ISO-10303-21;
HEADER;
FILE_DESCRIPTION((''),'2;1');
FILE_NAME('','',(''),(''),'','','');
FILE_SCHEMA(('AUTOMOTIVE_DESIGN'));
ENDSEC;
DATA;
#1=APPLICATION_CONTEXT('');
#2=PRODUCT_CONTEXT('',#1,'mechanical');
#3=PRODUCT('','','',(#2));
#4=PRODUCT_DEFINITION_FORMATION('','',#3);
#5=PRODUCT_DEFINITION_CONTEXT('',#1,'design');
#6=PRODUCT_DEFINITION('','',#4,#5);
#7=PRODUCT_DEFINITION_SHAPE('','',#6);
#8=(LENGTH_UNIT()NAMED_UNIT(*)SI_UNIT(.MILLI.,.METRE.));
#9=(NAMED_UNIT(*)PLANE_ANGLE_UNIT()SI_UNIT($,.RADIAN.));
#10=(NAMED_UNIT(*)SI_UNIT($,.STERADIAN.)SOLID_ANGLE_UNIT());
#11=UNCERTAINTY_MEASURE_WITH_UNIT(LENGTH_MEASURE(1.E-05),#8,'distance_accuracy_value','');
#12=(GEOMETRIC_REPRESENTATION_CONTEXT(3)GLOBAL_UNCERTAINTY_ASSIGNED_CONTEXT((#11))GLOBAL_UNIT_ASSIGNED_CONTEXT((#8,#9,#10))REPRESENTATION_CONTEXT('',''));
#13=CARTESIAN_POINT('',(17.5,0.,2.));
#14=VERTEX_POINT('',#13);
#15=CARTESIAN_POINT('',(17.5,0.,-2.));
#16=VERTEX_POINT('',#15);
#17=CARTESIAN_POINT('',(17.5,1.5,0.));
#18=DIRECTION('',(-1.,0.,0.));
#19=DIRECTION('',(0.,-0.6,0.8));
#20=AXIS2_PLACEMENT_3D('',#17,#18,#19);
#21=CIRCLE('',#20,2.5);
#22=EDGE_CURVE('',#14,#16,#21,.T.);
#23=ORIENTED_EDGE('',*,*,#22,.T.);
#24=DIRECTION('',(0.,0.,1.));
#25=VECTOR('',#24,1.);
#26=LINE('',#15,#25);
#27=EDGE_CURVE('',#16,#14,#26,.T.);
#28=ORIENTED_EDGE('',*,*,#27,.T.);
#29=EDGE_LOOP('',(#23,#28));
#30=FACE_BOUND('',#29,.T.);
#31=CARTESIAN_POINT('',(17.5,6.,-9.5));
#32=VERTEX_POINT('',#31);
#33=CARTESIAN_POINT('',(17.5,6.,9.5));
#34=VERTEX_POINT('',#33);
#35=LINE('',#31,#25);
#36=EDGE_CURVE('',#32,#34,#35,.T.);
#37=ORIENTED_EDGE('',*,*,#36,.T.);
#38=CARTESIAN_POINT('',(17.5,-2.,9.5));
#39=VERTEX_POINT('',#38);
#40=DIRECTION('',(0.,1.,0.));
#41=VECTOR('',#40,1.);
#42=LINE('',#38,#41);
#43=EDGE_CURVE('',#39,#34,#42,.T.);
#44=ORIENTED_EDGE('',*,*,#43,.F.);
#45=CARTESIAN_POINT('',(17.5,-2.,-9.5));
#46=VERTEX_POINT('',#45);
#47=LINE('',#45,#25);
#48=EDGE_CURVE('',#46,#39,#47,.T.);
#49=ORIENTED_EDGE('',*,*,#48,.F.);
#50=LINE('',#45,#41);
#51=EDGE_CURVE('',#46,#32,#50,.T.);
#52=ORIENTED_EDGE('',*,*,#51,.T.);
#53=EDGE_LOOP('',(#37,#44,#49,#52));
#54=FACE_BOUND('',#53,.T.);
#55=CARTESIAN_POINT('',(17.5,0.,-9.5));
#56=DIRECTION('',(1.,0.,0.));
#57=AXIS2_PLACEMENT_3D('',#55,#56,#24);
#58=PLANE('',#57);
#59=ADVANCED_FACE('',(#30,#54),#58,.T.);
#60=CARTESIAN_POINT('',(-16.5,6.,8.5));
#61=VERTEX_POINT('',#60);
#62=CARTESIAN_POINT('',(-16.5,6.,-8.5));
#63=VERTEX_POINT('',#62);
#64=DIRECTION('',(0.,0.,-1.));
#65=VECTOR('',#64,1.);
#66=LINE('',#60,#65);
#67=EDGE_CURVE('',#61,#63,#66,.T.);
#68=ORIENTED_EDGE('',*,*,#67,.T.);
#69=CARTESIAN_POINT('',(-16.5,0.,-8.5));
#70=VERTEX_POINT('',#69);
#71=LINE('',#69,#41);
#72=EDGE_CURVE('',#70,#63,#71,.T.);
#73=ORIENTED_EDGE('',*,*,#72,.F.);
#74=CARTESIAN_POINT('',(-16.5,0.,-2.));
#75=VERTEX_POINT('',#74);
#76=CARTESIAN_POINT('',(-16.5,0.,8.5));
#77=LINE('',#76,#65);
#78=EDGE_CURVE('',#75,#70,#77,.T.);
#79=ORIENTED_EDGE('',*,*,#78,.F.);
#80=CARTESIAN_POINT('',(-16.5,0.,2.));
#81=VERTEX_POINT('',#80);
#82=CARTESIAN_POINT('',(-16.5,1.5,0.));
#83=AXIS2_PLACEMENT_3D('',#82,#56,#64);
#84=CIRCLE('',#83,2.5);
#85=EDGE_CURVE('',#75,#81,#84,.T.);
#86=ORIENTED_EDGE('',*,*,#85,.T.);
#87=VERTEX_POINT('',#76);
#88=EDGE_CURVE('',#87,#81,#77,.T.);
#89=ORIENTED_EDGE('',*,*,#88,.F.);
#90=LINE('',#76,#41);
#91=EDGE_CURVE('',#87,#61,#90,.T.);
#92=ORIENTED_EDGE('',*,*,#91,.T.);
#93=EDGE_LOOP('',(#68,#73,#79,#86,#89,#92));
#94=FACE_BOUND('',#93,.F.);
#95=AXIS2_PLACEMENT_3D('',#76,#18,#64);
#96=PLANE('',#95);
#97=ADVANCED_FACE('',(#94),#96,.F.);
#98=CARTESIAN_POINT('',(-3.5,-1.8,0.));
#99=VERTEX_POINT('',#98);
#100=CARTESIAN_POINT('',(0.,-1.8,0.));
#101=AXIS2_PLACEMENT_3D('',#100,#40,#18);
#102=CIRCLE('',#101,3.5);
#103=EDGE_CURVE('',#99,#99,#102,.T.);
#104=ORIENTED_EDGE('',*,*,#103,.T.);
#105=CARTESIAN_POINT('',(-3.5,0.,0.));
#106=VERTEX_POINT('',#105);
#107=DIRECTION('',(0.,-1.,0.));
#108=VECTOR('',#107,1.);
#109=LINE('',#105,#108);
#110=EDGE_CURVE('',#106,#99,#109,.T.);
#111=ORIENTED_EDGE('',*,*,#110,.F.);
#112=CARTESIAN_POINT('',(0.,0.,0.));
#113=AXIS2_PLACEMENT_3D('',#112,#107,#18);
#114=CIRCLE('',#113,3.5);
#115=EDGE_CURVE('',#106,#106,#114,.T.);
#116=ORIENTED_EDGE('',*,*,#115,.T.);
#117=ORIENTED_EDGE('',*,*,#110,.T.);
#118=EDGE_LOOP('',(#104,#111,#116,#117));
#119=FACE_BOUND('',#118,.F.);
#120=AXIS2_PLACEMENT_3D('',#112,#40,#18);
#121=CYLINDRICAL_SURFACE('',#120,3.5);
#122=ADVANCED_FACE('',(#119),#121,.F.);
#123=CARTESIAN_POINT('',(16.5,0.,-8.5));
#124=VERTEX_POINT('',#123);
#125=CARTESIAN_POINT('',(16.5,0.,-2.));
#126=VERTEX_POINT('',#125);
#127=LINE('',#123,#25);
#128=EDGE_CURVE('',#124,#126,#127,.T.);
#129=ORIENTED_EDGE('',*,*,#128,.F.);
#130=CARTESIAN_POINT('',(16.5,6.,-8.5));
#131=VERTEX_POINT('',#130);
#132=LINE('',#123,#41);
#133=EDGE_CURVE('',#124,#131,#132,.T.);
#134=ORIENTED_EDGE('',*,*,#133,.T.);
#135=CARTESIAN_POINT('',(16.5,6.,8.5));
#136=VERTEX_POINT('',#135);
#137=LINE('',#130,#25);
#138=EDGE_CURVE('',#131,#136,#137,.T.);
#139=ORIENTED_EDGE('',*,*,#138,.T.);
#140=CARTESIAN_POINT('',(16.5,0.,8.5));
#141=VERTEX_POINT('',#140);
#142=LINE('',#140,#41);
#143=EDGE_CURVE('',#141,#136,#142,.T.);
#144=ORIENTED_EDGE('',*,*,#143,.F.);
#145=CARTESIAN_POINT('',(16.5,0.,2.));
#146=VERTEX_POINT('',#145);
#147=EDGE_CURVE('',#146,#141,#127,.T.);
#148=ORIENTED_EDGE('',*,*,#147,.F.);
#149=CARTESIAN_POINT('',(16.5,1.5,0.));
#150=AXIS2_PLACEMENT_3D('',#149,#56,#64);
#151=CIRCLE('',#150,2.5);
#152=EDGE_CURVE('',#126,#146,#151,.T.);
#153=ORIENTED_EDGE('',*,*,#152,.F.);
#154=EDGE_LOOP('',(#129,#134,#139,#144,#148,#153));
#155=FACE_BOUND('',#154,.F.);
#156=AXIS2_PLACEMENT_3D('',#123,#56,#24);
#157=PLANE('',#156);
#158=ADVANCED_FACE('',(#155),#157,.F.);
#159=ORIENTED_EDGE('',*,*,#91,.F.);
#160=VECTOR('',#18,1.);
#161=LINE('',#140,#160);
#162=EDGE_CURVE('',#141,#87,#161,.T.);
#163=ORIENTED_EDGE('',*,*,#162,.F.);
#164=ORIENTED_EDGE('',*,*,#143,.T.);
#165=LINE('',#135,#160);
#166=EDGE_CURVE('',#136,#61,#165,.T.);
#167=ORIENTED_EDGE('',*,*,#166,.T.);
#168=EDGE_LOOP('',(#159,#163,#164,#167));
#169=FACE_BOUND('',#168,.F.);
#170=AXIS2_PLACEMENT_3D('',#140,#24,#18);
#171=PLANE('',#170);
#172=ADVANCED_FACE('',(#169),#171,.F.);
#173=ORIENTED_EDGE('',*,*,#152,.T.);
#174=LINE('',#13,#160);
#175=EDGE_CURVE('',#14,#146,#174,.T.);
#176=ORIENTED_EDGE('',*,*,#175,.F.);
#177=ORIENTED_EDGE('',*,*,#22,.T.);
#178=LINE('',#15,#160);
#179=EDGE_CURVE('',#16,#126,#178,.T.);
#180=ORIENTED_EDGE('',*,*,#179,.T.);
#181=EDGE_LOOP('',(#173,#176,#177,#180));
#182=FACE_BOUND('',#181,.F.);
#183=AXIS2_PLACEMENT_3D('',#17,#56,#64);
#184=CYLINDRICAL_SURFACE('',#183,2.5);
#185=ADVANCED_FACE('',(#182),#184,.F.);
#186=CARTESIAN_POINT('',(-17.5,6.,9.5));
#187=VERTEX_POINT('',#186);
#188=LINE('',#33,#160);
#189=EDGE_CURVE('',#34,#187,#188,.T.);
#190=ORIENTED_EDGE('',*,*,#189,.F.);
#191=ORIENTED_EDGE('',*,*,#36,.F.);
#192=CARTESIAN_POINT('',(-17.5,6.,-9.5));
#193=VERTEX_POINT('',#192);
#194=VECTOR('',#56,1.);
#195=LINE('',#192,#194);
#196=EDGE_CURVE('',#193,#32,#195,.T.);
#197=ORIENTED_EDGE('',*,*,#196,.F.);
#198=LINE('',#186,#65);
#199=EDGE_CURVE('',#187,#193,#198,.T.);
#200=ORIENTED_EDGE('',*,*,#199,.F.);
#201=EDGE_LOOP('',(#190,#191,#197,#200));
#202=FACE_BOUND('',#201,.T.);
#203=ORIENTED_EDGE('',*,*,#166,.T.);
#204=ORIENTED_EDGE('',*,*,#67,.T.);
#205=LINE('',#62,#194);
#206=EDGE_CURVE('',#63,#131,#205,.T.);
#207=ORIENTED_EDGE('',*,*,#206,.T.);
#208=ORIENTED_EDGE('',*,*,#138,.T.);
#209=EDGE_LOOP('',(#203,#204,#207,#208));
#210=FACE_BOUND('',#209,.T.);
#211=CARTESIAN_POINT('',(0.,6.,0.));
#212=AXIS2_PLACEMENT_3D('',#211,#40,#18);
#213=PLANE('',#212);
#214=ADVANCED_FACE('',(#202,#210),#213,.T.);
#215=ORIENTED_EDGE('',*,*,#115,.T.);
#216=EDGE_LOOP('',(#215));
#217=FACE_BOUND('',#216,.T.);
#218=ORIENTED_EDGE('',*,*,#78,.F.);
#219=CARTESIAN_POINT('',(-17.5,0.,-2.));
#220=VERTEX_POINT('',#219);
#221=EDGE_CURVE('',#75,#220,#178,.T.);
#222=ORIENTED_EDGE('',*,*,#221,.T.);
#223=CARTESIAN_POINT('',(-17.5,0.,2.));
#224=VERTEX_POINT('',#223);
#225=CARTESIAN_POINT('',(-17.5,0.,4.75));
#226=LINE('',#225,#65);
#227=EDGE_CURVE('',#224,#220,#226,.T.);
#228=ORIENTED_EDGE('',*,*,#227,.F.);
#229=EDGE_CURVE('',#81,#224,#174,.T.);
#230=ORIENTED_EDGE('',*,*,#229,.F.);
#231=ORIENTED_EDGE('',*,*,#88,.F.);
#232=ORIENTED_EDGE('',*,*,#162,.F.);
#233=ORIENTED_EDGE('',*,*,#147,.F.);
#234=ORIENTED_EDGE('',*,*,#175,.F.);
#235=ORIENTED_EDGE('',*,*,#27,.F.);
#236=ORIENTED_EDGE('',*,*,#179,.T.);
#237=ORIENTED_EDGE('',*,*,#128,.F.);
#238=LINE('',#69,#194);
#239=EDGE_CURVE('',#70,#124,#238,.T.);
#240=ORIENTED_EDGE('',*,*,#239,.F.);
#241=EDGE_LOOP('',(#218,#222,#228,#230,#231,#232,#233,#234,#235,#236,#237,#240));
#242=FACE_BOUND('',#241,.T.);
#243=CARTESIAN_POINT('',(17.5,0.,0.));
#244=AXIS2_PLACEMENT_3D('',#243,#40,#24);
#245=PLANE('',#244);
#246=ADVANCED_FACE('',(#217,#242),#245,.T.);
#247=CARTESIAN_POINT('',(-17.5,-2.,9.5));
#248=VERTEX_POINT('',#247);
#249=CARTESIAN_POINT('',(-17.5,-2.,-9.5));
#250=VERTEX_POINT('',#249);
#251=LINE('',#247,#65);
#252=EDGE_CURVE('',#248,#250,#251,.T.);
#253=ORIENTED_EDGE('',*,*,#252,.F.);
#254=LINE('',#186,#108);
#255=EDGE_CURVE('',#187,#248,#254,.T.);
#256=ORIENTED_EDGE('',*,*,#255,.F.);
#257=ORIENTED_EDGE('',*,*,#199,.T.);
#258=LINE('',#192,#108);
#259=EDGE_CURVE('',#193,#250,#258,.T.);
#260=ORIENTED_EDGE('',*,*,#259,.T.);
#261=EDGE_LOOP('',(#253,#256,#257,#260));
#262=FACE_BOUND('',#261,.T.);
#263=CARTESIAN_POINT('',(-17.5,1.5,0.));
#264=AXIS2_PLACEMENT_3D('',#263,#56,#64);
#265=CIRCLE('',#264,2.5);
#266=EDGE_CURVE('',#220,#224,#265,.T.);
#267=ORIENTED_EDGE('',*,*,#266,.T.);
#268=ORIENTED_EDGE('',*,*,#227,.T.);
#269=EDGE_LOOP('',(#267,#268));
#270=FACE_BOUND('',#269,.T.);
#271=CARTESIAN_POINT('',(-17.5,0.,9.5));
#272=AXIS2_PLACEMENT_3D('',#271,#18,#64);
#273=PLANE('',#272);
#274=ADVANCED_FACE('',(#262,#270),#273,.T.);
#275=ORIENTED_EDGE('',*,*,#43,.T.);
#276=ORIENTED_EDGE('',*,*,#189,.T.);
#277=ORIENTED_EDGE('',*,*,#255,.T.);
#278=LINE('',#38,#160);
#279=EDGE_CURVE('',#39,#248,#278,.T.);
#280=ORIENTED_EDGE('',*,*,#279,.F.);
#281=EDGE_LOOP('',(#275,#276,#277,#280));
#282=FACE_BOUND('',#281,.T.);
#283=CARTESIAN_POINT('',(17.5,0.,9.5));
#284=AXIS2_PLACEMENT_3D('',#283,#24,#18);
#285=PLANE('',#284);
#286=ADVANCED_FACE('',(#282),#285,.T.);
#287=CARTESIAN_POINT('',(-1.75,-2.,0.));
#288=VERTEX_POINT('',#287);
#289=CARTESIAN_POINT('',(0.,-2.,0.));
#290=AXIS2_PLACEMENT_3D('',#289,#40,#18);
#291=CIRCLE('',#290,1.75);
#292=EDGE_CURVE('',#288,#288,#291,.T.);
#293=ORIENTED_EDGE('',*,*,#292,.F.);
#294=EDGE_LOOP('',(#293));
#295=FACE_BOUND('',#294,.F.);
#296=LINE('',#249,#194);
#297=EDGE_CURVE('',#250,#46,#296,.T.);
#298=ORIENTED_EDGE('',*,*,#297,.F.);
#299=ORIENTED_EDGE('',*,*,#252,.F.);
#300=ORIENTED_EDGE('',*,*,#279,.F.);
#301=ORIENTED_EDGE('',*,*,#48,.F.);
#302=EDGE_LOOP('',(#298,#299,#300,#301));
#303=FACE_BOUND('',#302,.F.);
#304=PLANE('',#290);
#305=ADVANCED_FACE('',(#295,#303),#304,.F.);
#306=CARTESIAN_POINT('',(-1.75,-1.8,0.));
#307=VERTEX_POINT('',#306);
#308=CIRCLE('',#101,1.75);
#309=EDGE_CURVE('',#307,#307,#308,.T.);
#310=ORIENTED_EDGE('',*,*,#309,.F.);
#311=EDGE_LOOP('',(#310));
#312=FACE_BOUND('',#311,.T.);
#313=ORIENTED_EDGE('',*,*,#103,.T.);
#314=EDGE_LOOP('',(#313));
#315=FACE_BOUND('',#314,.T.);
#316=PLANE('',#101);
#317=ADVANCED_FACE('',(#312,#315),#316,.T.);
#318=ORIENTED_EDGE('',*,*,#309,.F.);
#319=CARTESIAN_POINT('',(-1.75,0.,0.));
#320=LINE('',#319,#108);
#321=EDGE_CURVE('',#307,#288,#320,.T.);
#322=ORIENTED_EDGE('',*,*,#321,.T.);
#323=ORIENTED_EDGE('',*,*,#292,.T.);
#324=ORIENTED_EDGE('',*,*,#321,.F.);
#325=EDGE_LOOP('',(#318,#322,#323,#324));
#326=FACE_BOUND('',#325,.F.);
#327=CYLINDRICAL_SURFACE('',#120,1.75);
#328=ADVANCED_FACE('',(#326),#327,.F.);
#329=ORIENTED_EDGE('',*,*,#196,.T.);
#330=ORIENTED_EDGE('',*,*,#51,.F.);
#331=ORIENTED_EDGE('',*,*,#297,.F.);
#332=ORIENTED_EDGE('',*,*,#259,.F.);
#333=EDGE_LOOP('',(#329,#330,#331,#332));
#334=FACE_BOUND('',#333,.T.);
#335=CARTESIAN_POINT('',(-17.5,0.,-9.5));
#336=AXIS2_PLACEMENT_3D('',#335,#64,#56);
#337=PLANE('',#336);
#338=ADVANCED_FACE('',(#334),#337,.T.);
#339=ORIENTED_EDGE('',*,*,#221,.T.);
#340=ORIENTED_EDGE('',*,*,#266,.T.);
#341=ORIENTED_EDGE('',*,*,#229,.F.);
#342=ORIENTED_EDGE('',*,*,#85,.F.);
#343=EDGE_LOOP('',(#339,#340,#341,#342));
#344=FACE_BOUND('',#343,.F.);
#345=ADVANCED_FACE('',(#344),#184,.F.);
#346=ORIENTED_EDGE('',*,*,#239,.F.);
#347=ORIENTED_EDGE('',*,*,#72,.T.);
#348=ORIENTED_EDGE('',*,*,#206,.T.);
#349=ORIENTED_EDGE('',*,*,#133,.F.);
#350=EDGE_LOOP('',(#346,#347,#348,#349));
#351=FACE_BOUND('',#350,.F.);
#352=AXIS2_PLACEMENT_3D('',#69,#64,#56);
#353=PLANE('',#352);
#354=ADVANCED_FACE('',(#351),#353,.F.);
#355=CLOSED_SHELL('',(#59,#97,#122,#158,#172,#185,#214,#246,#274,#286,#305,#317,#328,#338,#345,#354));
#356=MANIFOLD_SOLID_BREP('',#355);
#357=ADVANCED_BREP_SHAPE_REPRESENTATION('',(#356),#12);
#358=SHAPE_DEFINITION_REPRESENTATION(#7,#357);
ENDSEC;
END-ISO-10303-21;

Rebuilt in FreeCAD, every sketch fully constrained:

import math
import FreeCAD as App
import Part
import Sketcher
from FreeCAD import Vector
Q = App.Units.Quantity


def add_polygon(sketch, points):
    """Adds a closed chain of lines whose ends are joined by coincident constraints."""
    first, n = sketch.GeometryCount, len(points)
    for a, b in zip(points, points[1:] + points[:1]):
        sketch.addGeometry(Part.LineSegment(App.Vector(*a, 0), App.Vector(*b, 0)), False)
    for i in range(n):
        sketch.addConstraint(Sketcher.Constraint("Coincident", first + i, 2, first + (i + 1) % n, 1))

doc = App.newDocument("Part")
body = doc.addObject("PartDesign::Body", "Body")

sketch1 = body.newObject("Sketcher::SketchObject", "Sketch")
sketch1.AttachmentSupport = (doc.getObject("XZ_Plane"), [""])
sketch1.MapMode = "FlatFace"
add_polygon(sketch1, [(-17.5, 9.5), (17.5, 9.5), (17.5, -9.5), (-17.5, -9.5)])
add_polygon(sketch1, [(16.5, -8.5), (16.5, 8.5), (-16.5, 8.5), (-16.5, -8.5)])
sketch1.addConstraint([
    Sketcher.Constraint("Horizontal", 0),
    Sketcher.Constraint("Vertical", 1),
    Sketcher.Constraint("Horizontal", 2),
    Sketcher.Constraint("Vertical", 3),
    Sketcher.Constraint("Vertical", 4),
    Sketcher.Constraint("Horizontal", 5),
    Sketcher.Constraint("Vertical", 6),
    Sketcher.Constraint("Horizontal", 7),
    Sketcher.Constraint("Symmetric", 0, 2, 2, 2, -1, 1),
    Sketcher.Constraint("Symmetric", 4, 2, 6, 2, -1, 1),
    Sketcher.Constraint("DistanceX", 0, 1, 0, 2, Q("35 mm")),
    Sketcher.Constraint("DistanceX", 5, 2, 5, 1, Q("33 mm")),
    Sketcher.Constraint("DistanceY", 1, 2, 1, 1, Q("19 mm")),
    Sketcher.Constraint("DistanceY", 4, 1, 4, 2, Q("17 mm")),
])
pad1 = body.newObject("PartDesign::Pad", "Pad")
pad1.Profile = sketch1
pad1.Length = 6
pad1.Reversed = True

sketch2 = body.newObject("Sketcher::SketchObject", "Sketch001")
sketch2.AttachmentSupport = (doc.getObject("XZ_Plane"), [""])
sketch2.MapMode = "FlatFace"
add_polygon(sketch2, [(-17.5, 9.5), (17.5, 9.5), (17.5, -9.5), (-17.5, -9.5)])
sketch2.addGeometry(Part.Circle(Vector(0, 0, 0), Vector(0, 0, 1), 1.75), False)
sketch2.addConstraint([
    Sketcher.Constraint("Horizontal", 0),
    Sketcher.Constraint("Vertical", 1),
    Sketcher.Constraint("Horizontal", 2),
    Sketcher.Constraint("Vertical", 3),
    Sketcher.Constraint("Coincident", 4, 3, -1, 1),
    Sketcher.Constraint("Symmetric", 0, 2, 2, 2, -1, 1),
    Sketcher.Constraint("Diameter", 4, Q("3.5 mm")),
    Sketcher.Constraint("DistanceX", 0, 1, 0, 2, Q("35 mm")),
    Sketcher.Constraint("DistanceY", 1, 2, 1, 1, Q("19 mm")),
])
pad2 = body.newObject("PartDesign::Pad", "Pad001")
pad2.Profile = sketch2
pad2.Length = 2

sketch3 = body.newObject("Sketcher::SketchObject", "Sketch002")
sketch3.AttachmentSupport = (doc.getObject("XZ_Plane"), [""])
sketch3.MapMode = "FlatFace"
sketch3.addGeometry([
    Part.Circle(Vector(0, 0, 0), Vector(0, 0, 1), 3.5),
    Part.Circle(Vector(0, 0, 0), Vector(0, 0, 1), 1.75),
], False)
sketch3.addConstraint([
    Sketcher.Constraint("Coincident", 0, 3, -1, 1),
    Sketcher.Constraint("Coincident", 1, 3, -1, 1),
    Sketcher.Constraint("Diameter", 0, Q("7 mm")),
    Sketcher.Constraint("Diameter", 1, Q("3.5 mm")),
])
pocket1 = body.newObject("PartDesign::Pocket", "Pocket")
pocket1.Profile = sketch3
pocket1.Length = 1.8
pocket1.Reversed = True

sketch4 = body.newObject("Sketcher::SketchObject", "Sketch003")
sketch4.AttachmentSupport = (doc.getObject("YZ_Plane"), [""])
sketch4.MapMode = "FlatFace"
sketch4.AttachmentOffset = App.Placement(Vector(0, 0, 17.5), App.Rotation())
sketch4.addGeometry([
    Part.LineSegment(Vector(0, 2, 0), Vector(0, -2, 0)),
    Part.ArcOfCircle(Part.Circle(Vector(1.5, 0, 0), Vector(0, 0, 1), 2.5), math.radians(-126.869898), math.radians(126.869898)),
], False)
sketch4.addConstraint([
    Sketcher.Constraint("Coincident", 0, 1, 1, 2),
    Sketcher.Constraint("Coincident", 1, 1, 0, 2),
    Sketcher.Constraint("Vertical", 0),
    Sketcher.Constraint("Symmetric", 0, 1, 1, 1, -1, 1),
    Sketcher.Constraint("Radius", 1, Q("2.5 mm")),
    Sketcher.Constraint("DistanceY", 0, 2, 0, 1, Q("4 mm")),
])
pocket2 = body.newObject("PartDesign::Pocket", "Pocket001")
pocket2.Profile = sketch4
pocket2.Length = 39.25

doc.recompute()
